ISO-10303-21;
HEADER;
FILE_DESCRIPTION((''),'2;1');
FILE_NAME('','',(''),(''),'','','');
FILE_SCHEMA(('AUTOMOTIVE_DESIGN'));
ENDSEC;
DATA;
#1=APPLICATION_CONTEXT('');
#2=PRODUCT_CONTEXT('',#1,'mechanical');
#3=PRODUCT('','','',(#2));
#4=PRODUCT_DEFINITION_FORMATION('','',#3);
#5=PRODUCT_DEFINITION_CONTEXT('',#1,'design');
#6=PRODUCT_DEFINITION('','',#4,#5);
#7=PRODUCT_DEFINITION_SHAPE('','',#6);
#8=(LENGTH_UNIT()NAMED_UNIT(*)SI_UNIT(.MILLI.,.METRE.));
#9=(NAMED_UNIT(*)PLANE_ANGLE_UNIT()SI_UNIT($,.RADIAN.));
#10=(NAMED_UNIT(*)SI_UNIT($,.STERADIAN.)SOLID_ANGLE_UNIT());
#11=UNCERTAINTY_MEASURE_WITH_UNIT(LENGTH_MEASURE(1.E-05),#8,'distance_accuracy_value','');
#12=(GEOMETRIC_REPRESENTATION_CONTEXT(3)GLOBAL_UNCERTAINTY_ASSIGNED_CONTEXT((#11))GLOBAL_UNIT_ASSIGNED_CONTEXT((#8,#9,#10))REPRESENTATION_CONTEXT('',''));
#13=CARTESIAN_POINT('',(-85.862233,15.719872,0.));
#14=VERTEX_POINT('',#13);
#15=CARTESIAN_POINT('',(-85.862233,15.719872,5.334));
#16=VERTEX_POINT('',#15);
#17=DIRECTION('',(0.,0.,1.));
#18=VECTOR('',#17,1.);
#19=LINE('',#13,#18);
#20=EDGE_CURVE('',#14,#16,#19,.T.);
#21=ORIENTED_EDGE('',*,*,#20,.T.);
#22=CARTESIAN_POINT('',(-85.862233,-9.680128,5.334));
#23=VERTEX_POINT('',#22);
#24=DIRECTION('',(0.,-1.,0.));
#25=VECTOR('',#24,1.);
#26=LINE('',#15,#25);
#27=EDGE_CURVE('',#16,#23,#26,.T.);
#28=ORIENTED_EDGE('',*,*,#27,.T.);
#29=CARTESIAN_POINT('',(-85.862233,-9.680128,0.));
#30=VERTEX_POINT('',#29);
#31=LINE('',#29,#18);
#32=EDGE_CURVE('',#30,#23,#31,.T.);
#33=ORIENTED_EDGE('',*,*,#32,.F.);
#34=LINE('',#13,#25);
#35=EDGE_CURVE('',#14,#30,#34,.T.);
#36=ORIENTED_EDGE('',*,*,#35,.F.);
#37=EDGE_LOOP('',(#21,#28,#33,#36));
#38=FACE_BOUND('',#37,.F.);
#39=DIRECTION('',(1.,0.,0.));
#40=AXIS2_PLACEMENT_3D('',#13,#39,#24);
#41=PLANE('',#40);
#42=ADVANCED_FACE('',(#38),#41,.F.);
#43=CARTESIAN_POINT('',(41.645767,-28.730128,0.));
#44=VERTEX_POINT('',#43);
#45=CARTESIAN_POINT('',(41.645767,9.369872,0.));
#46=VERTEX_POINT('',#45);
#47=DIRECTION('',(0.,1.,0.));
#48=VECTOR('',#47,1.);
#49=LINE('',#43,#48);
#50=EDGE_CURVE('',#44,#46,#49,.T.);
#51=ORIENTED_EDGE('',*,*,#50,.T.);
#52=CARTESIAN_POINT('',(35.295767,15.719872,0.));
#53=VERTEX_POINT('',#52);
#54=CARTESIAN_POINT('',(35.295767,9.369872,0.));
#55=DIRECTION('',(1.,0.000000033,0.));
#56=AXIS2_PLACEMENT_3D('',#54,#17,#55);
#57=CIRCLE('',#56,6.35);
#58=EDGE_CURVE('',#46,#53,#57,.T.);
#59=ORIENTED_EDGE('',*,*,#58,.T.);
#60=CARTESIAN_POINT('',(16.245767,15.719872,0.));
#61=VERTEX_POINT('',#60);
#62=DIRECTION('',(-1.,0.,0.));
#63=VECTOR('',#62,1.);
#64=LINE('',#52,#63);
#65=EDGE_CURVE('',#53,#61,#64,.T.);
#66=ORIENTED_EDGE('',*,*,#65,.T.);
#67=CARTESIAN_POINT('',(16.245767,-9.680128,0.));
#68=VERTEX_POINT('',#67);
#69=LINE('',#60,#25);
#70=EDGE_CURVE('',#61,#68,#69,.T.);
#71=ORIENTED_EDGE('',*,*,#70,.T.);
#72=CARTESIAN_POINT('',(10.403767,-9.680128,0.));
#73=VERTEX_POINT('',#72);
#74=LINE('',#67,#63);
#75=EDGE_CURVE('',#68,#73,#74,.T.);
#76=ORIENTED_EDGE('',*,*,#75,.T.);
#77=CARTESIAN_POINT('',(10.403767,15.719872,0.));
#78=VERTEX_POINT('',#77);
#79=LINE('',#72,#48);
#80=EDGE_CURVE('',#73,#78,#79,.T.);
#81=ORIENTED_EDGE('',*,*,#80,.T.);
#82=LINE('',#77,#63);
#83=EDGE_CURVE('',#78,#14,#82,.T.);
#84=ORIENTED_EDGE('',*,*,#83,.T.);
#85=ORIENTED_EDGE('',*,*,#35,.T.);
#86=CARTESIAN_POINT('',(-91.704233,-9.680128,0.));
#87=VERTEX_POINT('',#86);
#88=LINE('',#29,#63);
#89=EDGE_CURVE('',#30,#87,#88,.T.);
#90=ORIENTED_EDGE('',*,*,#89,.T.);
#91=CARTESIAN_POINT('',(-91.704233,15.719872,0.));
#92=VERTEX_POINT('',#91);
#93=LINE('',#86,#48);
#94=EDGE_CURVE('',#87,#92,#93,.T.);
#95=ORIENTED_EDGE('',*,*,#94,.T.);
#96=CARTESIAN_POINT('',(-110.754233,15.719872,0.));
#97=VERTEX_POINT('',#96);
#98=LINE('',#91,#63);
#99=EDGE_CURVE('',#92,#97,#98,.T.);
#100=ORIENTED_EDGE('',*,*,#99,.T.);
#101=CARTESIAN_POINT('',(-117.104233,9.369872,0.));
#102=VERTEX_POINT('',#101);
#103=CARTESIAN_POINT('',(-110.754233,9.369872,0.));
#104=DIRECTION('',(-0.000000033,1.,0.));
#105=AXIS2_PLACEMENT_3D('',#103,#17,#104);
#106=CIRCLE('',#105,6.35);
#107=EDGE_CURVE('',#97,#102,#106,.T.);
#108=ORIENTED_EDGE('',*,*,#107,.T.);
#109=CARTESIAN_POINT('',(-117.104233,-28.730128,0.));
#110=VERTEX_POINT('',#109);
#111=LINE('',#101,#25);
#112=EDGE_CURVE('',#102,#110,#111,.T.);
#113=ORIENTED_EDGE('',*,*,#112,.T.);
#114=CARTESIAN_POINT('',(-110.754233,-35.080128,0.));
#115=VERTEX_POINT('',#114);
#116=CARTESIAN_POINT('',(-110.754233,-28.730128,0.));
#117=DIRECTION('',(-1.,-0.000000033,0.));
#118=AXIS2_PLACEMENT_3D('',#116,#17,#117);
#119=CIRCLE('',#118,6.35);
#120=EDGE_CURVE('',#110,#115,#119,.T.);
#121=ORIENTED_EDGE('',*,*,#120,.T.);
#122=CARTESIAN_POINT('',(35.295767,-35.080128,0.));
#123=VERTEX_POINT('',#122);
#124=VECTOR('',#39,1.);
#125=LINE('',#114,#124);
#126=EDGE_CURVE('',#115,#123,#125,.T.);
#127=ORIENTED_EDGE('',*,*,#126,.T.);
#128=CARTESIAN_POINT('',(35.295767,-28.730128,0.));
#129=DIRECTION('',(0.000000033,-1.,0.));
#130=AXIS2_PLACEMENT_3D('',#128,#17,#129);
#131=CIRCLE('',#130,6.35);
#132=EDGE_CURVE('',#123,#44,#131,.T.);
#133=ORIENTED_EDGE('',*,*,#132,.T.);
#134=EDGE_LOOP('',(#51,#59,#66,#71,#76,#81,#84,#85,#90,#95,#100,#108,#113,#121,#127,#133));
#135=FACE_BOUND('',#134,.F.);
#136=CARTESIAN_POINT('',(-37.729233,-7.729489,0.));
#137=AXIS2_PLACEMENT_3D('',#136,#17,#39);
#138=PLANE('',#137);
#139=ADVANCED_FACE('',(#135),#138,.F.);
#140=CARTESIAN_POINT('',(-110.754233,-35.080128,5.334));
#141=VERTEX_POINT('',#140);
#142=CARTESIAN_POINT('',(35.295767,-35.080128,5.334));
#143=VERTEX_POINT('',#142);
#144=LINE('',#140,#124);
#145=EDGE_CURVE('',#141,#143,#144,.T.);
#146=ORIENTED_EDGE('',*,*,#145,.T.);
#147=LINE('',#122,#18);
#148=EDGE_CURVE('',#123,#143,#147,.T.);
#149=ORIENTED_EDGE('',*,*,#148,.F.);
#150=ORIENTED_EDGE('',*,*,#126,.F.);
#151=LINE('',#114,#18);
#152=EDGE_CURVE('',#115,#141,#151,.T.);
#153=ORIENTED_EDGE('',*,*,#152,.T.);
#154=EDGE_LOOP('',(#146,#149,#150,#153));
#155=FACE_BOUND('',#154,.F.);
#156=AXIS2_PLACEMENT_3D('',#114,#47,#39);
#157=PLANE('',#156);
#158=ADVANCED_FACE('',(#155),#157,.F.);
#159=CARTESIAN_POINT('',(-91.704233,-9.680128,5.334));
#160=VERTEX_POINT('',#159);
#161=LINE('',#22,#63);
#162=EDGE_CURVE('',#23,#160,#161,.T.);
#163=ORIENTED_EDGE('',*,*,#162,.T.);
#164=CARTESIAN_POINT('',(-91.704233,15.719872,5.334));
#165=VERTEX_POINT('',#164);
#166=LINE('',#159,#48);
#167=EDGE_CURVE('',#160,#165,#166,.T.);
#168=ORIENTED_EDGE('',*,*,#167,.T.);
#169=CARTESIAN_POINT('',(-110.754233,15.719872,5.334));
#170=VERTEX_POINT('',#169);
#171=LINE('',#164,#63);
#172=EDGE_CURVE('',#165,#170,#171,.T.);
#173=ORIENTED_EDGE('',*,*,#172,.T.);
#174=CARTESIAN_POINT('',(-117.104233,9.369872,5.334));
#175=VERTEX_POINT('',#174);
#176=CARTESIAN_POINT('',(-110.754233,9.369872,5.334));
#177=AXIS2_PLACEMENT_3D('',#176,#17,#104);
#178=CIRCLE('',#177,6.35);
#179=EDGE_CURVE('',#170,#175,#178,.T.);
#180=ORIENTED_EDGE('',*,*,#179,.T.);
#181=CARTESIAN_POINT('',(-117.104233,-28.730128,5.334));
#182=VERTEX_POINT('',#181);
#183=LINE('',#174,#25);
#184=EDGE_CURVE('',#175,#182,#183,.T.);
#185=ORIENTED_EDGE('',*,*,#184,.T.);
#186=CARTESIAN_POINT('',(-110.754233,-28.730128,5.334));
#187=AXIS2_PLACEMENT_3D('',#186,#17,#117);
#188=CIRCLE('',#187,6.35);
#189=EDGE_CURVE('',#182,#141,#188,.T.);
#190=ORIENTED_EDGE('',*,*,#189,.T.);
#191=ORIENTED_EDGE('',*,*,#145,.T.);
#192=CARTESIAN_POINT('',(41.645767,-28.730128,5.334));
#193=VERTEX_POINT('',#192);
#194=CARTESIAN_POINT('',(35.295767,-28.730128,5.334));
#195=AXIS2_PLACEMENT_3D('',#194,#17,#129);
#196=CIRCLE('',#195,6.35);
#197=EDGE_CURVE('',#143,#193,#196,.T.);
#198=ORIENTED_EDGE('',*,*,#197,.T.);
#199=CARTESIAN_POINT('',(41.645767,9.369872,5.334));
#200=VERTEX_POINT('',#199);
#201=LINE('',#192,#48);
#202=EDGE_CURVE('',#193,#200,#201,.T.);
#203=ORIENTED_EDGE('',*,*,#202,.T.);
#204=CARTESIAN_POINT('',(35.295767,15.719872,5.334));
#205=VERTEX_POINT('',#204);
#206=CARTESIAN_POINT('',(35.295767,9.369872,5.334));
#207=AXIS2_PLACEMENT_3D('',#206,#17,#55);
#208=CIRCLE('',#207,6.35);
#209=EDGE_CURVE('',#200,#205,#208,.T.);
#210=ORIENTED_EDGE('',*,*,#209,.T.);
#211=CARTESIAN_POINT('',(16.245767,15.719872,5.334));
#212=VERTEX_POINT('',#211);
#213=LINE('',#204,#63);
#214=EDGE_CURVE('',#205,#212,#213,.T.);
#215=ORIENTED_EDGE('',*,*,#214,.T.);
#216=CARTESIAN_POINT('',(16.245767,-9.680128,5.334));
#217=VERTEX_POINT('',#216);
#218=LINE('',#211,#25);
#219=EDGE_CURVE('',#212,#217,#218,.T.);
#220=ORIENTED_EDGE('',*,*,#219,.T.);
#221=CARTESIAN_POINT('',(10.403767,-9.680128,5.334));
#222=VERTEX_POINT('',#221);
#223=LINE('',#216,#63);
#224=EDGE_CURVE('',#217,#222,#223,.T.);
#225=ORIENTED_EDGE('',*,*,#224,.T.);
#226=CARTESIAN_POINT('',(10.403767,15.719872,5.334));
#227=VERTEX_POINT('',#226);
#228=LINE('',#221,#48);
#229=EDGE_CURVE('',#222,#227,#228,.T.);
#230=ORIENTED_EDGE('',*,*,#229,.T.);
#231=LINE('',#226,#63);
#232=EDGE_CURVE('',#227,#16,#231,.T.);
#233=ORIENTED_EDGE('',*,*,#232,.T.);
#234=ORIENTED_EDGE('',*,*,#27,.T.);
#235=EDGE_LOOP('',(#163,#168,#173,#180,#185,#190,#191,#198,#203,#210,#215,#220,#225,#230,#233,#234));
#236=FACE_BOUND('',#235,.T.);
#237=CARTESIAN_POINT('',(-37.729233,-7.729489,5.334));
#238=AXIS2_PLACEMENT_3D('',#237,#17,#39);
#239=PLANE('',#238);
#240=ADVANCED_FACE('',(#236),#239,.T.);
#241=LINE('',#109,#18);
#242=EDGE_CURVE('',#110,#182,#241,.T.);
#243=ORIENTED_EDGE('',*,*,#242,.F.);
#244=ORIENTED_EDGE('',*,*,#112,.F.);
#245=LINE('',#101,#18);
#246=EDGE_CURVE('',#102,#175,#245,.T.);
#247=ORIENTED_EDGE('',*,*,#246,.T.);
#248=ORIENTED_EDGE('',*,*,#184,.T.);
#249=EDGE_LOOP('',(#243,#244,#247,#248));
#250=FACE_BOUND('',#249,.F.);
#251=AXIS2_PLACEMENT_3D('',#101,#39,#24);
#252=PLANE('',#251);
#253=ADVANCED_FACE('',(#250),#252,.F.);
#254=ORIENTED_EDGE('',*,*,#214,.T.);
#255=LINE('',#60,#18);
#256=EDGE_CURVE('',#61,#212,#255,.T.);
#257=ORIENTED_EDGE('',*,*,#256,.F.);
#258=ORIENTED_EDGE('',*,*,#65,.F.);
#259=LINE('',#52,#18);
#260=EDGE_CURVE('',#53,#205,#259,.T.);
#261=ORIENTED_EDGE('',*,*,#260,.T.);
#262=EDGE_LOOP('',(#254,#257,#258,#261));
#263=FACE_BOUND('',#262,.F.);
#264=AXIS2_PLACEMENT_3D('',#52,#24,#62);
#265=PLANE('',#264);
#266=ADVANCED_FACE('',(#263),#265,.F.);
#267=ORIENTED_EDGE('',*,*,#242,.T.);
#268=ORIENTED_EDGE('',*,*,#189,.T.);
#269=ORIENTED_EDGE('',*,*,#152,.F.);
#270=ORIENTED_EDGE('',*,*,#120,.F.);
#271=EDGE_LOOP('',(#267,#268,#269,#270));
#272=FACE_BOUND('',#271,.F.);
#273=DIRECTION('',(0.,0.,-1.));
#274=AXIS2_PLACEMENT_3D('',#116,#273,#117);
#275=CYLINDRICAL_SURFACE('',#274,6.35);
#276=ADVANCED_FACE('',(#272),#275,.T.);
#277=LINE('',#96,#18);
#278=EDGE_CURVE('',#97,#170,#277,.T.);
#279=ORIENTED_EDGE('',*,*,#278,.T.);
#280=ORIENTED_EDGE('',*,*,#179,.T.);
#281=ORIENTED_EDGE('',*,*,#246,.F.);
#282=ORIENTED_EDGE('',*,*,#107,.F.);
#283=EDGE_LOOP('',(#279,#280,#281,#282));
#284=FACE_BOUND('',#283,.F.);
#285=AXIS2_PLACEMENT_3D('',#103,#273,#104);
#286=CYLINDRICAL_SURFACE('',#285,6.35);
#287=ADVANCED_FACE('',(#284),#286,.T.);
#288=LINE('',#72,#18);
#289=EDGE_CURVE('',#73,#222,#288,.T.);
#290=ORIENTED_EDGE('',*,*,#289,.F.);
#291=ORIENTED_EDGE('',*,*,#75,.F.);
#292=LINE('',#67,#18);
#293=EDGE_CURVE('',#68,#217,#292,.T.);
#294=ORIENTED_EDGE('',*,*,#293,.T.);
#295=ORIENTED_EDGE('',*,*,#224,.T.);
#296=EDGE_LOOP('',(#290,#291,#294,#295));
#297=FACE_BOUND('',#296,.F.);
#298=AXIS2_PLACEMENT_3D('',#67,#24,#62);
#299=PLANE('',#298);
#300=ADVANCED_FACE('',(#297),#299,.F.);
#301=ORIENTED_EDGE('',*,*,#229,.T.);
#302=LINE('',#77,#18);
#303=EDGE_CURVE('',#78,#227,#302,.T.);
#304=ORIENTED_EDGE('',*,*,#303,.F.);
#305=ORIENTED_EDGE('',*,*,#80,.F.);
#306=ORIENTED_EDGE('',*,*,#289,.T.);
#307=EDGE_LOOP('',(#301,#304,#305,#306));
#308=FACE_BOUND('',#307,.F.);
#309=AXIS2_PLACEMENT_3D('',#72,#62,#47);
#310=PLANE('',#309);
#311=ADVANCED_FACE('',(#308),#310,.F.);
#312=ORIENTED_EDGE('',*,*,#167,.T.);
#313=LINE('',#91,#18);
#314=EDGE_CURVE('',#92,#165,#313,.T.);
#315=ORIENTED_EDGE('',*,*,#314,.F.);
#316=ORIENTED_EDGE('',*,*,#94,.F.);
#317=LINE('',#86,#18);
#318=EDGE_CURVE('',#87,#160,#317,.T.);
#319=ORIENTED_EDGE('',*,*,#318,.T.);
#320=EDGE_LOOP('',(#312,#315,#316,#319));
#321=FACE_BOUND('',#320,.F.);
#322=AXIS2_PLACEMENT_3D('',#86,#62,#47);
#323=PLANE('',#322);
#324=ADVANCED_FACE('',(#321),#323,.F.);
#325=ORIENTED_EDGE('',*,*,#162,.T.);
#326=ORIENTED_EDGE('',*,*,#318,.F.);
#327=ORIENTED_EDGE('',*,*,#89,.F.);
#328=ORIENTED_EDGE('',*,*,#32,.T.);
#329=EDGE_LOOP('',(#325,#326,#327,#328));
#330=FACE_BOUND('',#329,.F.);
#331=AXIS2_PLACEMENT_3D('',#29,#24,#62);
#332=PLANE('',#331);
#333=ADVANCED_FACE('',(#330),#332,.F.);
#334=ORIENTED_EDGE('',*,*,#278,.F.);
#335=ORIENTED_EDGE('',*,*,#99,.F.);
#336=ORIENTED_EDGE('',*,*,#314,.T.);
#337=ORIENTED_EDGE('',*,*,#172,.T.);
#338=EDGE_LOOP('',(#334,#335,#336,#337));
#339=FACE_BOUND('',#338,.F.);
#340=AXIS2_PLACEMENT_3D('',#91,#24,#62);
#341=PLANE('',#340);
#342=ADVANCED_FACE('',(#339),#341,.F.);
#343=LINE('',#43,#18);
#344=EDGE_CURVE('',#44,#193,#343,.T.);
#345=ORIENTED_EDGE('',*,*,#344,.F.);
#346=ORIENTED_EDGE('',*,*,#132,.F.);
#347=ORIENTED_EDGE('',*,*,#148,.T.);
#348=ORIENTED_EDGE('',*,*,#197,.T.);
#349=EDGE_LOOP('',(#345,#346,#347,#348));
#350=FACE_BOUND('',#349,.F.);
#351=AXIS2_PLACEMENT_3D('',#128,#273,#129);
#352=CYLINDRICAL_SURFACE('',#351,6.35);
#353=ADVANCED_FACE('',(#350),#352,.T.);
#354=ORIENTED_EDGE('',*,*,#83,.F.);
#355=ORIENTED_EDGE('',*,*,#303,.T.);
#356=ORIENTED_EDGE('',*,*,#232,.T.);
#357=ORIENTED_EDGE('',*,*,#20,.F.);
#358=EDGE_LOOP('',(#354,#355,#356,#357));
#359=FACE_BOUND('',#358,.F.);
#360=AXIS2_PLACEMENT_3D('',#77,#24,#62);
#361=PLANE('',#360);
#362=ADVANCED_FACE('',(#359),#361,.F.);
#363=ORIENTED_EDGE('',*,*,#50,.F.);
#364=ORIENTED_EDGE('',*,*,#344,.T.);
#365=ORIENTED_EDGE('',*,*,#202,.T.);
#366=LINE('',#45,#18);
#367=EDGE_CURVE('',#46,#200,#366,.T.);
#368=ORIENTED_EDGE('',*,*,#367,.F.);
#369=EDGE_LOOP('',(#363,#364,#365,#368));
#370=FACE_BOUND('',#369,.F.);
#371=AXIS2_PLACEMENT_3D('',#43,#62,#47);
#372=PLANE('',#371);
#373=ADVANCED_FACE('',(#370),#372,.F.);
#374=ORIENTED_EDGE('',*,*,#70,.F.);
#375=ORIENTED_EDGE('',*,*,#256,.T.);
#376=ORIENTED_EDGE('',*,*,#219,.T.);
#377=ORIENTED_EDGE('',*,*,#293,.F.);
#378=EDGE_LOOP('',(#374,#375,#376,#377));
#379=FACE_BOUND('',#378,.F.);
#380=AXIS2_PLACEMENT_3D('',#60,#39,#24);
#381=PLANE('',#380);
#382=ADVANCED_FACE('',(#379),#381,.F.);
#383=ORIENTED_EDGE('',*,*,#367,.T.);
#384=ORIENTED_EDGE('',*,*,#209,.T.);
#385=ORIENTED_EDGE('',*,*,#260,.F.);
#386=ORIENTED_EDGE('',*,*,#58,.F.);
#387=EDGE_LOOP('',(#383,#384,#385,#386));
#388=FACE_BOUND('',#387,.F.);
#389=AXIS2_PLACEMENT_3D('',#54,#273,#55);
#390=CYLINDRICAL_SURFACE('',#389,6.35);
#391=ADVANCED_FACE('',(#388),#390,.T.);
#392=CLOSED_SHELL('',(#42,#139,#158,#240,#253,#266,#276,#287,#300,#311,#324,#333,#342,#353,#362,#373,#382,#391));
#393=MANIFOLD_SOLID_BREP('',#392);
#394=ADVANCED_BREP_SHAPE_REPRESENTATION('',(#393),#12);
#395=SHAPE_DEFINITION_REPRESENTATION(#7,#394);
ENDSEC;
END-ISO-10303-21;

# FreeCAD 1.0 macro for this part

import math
import FreeCAD as App
import Part
import Sketcher
from FreeCAD import Vector
Q = App.Units.Quantity

doc = App.newDocument("Part")
body = doc.addObject("PartDesign::Body", "Body")

sketch1 = body.newObject("Sketcher::SketchObject", "Sketch")
sketch1.AttachmentSupport = (doc.getObject("XY_Plane"), [""])
sketch1.MapMode = "FlatFace"
sketch1.addGeometry([
    Part.LineSegment(Vector(-91.704233, 15.719872, 0), Vector(-110.754233, 15.719872, 0)),
    Part.ArcOfCircle(Part.Circle(Vector(-110.754233, 9.369872, 0), Vector(0, 0, 1), 6.35), math.radians(90.000002), math.radians(179.999998)),
    Part.LineSegment(Vector(-117.104233, 9.369872, 0), Vector(-117.104233, -28.730128, 0)),
    Part.ArcOfCircle(Part.Circle(Vector(-110.754233, -28.730128, 0), Vector(0, 0, 1), 6.35), math.radians(-179.999998), math.radians(-90.000002)),
    Part.LineSegment(Vector(-110.754233, -35.080128, 0), Vector(35.295767, -35.080128, 0)),
    Part.ArcOfCircle(Part.Circle(Vector(35.295767, -28.730128, 0), Vector(0, 0, 1), 6.35), math.radians(-89.999998), math.radians(-0.000002)),
    Part.LineSegment(Vector(41.645767, -28.730128, 0), Vector(41.645767, 9.369872, 0)),
    Part.ArcOfCircle(Part.Circle(Vector(35.295767, 9.369872, 0), Vector(0, 0, 1), 6.35), math.radians(0.000002), math.radians(89.999998)),
    Part.LineSegment(Vector(35.295767, 15.719872, 0), Vector(16.245767, 15.719872, 0)),
    Part.LineSegment(Vector(16.245767, 15.719872, 0), Vector(16.245767, -9.680128, 0)),
    Part.LineSegment(Vector(16.245767, -9.680128, 0), Vector(10.403767, -9.680128, 0)),
    Part.LineSegment(Vector(10.403767, -9.680128, 0), Vector(10.403767, 15.719872, 0)),
    Part.LineSegment(Vector(10.403767, 15.719872, 0), Vector(-85.862233, 15.719872, 0)),
    Part.LineSegment(Vector(-85.862233, 15.719872, 0), Vector(-85.862233, -9.680128, 0)),
    Part.LineSegment(Vector(-85.862233, -9.680128, 0), Vector(-91.704233, -9.680128, 0)),
    Part.LineSegment(Vector(-91.704233, -9.680128, 0), Vector(-91.704233, 15.719872, 0)),
], False)
sketch1.addConstraint([
    Sketcher.Constraint("Tangent", 0, 2, 1, 1),
    Sketcher.Constraint("Tangent", 1, 2, 2, 1),
    Sketcher.Constraint("Tangent", 2, 2, 3, 1),
    Sketcher.Constraint("Tangent", 3, 2, 4, 1),
    Sketcher.Constraint("Tangent", 4, 2, 5, 1),
    Sketcher.Constraint("Tangent", 5, 2, 6, 1),
    Sketcher.Constraint("Tangent", 6, 2, 7, 1),
    Sketcher.Constraint("Tangent", 7, 2, 8, 1),
    Sketcher.Constraint("Coincident", 8, 2, 9, 1),
    Sketcher.Constraint("Coincident", 9, 2, 10, 1),
    Sketcher.Constraint("Coincident", 10, 2, 11, 1),
    Sketcher.Constraint("Coincident", 11, 2, 12, 1),
    Sketcher.Constraint("Coincident", 12, 2, 13, 1),
    Sketcher.Constraint("Coincident", 13, 2, 14, 1),
    Sketcher.Constraint("Coincident", 14, 2, 15, 1),
    Sketcher.Constraint("Coincident", 15, 2, 0, 1),
    Sketcher.Constraint("Horizontal", 0),
    Sketcher.Constraint("Vertical", 2),
    Sketcher.Constraint("Horizontal", 4),
    Sketcher.Constraint("Vertical", 6),
    Sketcher.Constraint("Horizontal", 8),
    Sketcher.Constraint("Vertical", 9),
    Sketcher.Constraint("Horizontal", 10),
    Sketcher.Constraint("Vertical", 11),
    Sketcher.Constraint("Horizontal", 12),
    Sketcher.Constraint("Vertical", 13),
    Sketcher.Constraint("Horizontal", 14),
    Sketcher.Constraint("Vertical", 15),
    Sketcher.Constraint("Equal", 1, 3),
    Sketcher.Constraint("Equal", 3, 5),
    Sketcher.Constraint("Equal", 5, 7),
    Sketcher.Constraint("Horizontal", 1, 3, 7, 3),
    Sketcher.Constraint("Horizontal", 8, 2, 11, 2),
    Sketcher.Constraint("Horizontal", 10, 2, 13, 2),
    Sketcher.Constraint("Equal", 0, 8),
    Sketcher.Constraint("Equal", 10, 14),
    Sketcher.Constraint("DistanceY", 9, 2, 9, 1, Q("1 in")),
    Sketcher.Constraint("Radius", 1, Q("0.25 in")),
    Sketcher.Constraint("DistanceY", 2, 2, 2, 1, Q("1.5 in")),
    Sketcher.Constraint("DistanceX", 1, 2, 7, 3, Q("6 in")),
    Sketcher.Constraint("DistanceX", 8, 2, 6, 2, Q("1 in")),
    Sketcher.Constraint("DistanceX", 10, 2, 10, 1, Q("0.23 in")),
    Sketcher.Constraint("DistanceY", -1, 1, 1, 3, 9.369872),
    Sketcher.Constraint("DistanceX", 1, 3, -1, 1, 110.754233),
])
pad1 = body.newObject("PartDesign::Pad", "Pad")
pad1.Profile = sketch1
pad1.Length = Q("0.21 in")

doc.recompute()
